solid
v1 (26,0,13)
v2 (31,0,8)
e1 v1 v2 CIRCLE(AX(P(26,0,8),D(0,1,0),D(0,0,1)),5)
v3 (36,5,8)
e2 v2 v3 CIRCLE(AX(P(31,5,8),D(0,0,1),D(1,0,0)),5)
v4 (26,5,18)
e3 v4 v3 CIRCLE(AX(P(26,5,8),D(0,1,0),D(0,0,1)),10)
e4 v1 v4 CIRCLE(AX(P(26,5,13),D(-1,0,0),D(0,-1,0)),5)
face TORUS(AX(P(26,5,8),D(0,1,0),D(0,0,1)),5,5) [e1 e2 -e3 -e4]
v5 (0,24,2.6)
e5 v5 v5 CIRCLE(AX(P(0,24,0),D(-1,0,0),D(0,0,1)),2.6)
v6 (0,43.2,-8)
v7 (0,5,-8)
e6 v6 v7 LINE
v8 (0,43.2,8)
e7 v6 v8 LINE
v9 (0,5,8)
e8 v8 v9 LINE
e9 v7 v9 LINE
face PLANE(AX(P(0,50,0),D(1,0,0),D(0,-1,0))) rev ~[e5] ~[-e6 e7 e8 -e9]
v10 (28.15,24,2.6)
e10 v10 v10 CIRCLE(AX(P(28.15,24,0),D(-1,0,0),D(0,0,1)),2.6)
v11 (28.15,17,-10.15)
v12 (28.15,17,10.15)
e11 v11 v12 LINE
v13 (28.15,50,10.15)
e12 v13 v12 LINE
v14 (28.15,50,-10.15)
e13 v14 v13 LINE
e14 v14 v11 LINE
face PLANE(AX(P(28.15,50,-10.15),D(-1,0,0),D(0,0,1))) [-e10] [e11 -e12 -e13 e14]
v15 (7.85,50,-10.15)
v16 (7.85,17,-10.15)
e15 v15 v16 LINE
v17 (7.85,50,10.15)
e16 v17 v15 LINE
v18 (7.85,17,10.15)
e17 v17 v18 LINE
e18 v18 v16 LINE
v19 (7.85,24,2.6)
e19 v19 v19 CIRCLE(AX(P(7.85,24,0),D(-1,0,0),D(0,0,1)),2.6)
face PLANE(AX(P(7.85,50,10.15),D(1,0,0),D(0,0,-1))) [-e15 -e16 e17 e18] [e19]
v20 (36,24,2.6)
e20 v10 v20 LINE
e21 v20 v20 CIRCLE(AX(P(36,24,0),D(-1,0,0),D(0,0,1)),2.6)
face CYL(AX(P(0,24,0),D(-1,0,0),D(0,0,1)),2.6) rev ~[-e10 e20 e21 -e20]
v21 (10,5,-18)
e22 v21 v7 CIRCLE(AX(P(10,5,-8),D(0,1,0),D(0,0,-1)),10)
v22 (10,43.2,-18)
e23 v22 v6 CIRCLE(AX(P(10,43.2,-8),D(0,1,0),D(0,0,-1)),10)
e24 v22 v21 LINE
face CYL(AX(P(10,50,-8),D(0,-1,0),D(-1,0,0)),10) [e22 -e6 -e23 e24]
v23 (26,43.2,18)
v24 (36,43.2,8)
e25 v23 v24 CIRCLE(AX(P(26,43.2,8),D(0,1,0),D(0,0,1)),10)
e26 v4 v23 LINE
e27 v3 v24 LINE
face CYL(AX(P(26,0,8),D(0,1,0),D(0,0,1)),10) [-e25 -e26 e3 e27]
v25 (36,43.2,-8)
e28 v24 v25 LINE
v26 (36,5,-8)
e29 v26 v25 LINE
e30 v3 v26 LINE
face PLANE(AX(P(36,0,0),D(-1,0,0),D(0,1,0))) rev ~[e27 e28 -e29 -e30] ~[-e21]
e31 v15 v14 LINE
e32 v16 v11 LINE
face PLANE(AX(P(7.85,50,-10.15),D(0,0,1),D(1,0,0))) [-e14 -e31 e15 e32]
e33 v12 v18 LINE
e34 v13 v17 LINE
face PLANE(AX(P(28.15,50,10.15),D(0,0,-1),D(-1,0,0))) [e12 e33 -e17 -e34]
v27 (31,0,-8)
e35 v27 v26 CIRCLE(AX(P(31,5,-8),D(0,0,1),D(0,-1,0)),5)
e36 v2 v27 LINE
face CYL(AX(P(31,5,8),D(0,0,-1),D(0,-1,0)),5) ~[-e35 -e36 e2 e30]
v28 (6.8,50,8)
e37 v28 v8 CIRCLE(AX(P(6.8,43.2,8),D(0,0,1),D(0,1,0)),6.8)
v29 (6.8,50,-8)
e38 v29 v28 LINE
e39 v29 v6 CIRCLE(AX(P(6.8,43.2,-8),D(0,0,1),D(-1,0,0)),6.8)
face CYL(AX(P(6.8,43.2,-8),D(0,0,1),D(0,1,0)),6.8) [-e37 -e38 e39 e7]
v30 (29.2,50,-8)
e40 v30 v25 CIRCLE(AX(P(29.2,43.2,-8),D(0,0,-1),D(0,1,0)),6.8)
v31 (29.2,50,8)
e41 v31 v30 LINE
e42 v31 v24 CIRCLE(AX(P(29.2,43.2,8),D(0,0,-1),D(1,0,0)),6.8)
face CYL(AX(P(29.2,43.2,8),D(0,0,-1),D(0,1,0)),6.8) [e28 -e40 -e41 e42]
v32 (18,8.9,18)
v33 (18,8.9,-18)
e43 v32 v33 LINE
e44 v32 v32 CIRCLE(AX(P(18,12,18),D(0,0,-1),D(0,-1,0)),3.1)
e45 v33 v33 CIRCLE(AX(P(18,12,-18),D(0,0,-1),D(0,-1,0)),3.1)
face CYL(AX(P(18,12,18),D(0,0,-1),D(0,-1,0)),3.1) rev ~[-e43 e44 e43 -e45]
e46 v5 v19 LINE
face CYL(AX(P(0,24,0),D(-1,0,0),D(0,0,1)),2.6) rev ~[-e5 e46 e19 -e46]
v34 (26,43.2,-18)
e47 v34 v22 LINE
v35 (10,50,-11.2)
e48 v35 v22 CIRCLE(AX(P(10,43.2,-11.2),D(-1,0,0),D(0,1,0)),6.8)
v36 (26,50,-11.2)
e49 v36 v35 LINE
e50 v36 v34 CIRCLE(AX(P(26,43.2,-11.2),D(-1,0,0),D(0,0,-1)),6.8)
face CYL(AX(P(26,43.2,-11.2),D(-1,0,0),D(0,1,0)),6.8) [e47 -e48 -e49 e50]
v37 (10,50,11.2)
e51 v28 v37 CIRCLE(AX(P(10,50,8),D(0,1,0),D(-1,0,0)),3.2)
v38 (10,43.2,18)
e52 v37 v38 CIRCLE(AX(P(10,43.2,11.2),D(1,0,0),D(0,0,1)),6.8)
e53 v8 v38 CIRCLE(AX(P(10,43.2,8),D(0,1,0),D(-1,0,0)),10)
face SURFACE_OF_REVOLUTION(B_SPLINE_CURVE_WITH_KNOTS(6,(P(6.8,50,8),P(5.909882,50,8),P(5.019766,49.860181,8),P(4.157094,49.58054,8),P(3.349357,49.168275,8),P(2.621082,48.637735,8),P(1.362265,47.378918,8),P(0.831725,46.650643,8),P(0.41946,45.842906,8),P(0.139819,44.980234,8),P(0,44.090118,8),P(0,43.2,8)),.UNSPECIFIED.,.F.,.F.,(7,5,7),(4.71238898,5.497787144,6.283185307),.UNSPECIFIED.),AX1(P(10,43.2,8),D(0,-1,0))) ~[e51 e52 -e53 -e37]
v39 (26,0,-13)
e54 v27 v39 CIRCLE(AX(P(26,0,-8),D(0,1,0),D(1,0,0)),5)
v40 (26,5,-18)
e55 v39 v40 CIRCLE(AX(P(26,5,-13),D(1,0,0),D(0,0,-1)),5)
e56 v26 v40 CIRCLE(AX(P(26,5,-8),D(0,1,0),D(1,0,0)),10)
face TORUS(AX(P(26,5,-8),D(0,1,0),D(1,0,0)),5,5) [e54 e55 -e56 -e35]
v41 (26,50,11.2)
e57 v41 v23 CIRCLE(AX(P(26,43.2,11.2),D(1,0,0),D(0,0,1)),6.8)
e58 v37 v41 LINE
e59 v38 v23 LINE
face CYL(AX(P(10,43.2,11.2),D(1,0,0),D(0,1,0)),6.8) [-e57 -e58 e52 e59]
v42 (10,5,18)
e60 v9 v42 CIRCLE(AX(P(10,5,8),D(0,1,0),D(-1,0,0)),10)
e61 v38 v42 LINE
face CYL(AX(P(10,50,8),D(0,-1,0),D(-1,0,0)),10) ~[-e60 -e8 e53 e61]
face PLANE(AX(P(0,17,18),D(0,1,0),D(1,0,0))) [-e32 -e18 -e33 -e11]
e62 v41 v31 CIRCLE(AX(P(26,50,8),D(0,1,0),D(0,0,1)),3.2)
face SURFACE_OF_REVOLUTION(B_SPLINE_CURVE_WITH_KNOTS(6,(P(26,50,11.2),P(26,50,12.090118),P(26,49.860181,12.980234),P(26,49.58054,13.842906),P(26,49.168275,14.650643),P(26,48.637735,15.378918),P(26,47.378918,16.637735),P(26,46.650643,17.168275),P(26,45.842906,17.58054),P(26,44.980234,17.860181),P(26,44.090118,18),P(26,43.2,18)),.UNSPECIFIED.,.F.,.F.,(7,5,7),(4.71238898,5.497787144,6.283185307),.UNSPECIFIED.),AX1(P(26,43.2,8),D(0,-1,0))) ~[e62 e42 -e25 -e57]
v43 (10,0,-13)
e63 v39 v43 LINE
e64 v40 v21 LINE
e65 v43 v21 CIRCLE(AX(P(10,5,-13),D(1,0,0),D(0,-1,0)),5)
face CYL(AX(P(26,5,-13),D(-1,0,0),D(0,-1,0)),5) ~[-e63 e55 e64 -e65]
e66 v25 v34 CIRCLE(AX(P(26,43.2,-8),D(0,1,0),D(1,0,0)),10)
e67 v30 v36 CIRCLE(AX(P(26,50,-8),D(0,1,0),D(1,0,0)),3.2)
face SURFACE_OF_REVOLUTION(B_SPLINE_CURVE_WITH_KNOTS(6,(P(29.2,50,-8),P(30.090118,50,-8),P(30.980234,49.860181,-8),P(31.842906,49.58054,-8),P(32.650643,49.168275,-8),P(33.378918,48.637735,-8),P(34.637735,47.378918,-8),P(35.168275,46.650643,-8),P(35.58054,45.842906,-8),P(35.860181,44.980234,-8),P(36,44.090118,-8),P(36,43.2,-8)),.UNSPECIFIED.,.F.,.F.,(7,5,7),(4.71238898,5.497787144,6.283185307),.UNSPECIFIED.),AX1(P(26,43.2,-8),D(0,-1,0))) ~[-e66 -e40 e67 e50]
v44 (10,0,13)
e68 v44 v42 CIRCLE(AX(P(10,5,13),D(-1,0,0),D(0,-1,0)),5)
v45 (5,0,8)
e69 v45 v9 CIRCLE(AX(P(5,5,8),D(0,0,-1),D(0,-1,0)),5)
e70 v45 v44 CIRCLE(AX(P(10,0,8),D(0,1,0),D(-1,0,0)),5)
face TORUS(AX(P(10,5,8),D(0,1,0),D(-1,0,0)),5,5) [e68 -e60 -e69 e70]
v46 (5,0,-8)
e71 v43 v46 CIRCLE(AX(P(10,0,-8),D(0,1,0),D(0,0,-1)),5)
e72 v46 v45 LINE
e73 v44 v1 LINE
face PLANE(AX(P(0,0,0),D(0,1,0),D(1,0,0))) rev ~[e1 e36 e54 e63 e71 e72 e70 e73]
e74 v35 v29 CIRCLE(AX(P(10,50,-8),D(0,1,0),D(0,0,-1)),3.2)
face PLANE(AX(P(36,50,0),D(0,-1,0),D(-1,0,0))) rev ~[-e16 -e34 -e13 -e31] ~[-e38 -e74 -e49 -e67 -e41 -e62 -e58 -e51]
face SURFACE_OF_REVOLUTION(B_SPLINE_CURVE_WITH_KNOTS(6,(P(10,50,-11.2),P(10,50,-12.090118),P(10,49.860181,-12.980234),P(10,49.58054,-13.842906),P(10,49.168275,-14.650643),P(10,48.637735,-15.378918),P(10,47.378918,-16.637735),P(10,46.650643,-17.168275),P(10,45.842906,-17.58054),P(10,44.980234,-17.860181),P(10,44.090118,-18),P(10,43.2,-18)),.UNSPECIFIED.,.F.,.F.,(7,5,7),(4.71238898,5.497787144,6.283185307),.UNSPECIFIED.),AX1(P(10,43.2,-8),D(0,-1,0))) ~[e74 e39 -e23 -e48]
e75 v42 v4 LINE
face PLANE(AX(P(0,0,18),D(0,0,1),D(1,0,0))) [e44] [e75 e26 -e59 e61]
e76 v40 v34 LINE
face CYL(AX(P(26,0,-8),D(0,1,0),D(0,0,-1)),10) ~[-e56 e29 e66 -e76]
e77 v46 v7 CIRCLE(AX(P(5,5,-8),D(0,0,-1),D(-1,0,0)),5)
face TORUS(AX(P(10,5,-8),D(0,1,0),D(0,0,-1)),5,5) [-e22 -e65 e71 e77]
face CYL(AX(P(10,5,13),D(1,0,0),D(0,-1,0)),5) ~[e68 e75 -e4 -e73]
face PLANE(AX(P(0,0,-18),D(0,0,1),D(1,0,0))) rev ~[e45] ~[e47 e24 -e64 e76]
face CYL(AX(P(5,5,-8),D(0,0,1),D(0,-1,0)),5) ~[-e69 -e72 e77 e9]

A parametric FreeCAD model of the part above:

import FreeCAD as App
import Part
import Sketcher

V = App.Vector


def edges_at(feature, points):
    """Names of the edges that pass closest to the given points."""
    edges = feature.Shape.Edges
    near = lambda p: min(range(len(edges)), key=lambda i: edges[i].distToShape(Part.Vertex(*p))[0])
    return sorted({f"Edge{near(p) + 1}" for p in points})


def add_polygon(sketch, points):
    """Adds a closed chain of lines whose ends are joined by coincident constraints."""
    first, n = sketch.GeometryCount, len(points)
    for a, b in zip(points, points[1:] + points[:1]):
        sketch.addGeometry(Part.LineSegment(App.Vector(*a, 0), App.Vector(*b, 0)), False)
    for i in range(n):
        sketch.addConstraint(Sketcher.Constraint("Coincident", first + i, 2, first + (i + 1) % n, 1))

doc = App.newDocument("Part")
body = doc.addObject("PartDesign::Body", "Body")

sketch1 = doc.addObject("Sketcher::SketchObject", "Sketch")
body.addObject(sketch1)
sketch1.AttachmentSupport = (doc.XY_Plane, [""])
sketch1.MapMode = "FlatFace"
add_polygon(sketch1, [(0, 50), (0, 0), (36, 0), (36, 50)])
sketch1.addConstraint(Sketcher.Constraint("Vertical", 0))
sketch1.addConstraint(Sketcher.Constraint("Horizontal", 1))
sketch1.addConstraint(Sketcher.Constraint("Vertical", 2))
sketch1.addConstraint(Sketcher.Constraint("Horizontal", 3))
sketch1.addConstraint(Sketcher.Constraint("Coincident", 0, 2, -1, 1))
sketch1.addConstraint(Sketcher.Constraint("DistanceX", 1, 1, 1, 2, 36.0))
sketch1.addConstraint(Sketcher.Constraint("DistanceY", 0, 2, 0, 1, 50.0))
pad1 = doc.addObject("PartDesign::Pad", "Pad")
body.addObject(pad1)
pad1.Profile = sketch1
pad1.Length = 36
pad1.Midplane = True

sketch2 = doc.addObject("Sketcher::SketchObject", "Sketch001")
body.addObject(sketch2)
sketch2.AttachmentSupport = (doc.XZ_Plane, [""])
sketch2.MapMode = "FlatFace"
sketch2.AttachmentOffset = App.Placement(V(0, 0, -50), App.Rotation())
add_polygon(sketch2, [(7.85, 10.15), (28.15, 10.15), (28.15, -10.15), (7.85, -10.15)])
sketch2.addConstraint(Sketcher.Constraint("Horizontal", 0))
sketch2.addConstraint(Sketcher.Constraint("Vertical", 1))
sketch2.addConstraint(Sketcher.Constraint("Horizontal", 2))
sketch2.addConstraint(Sketcher.Constraint("Vertical", 3))
sketch2.addConstraint(Sketcher.Constraint("Equal", 2, 1))
sketch2.addConstraint(Sketcher.Constraint("DistanceX", 0, 1, 0, 2, 20.3))
sketch2.addConstraint(Sketcher.Constraint("DistanceX", -1, 1, 0, 2, 28.15))
sketch2.addConstraint(Sketcher.Constraint("DistanceY", -1, 1, 0, 2, 10.15))
pocket1 = doc.addObject("PartDesign::Pocket", "Pocket")
body.addObject(pocket1)
pocket1.Profile = sketch2
pocket1.Length = 33
pocket1.Reversed = True

sketch3 = doc.addObject("Sketcher::SketchObject", "Sketch002")
body.addObject(sketch3)
sketch3.AttachmentSupport = (doc.XY_Plane, [""])
sketch3.MapMode = "FlatFace"
sketch3.AttachmentOffset = App.Placement(V(0, 0, 18), App.Rotation())
sketch3.addGeometry(Part.Circle(V(18, 12, 0), V(0, 0, 1), 3.1), False)
sketch3.addConstraint(Sketcher.Constraint("Diameter", 0, 6.2))
sketch3.addConstraint(Sketcher.Constraint("DistanceX", -1, 1, 0, 3, 18.0))
sketch3.addConstraint(Sketcher.Constraint("DistanceY", -1, 1, 0, 3, 12.0))
doc.recompute()
hole = doc.addObject("PartDesign::Hole", "Hole")
body.addObject(hole)
hole.Profile = sketch3
hole.ThreadType = "None"
hole.Diameter = 6.2
hole.DepthType = "ThroughAll"

sketch4 = doc.addObject("Sketcher::SketchObject", "Sketch003")
body.addObject(sketch4)
sketch4.AttachmentSupport = (doc.YZ_Plane, [""])
sketch4.MapMode = "FlatFace"
sketch4.addGeometry(Part.Circle(V(24, 0, 0), V(0, 0, 1), 2.6), False)
sketch4.addConstraint(Sketcher.Constraint("PointOnObject", 0, 3, -1))
sketch4.addConstraint(Sketcher.Constraint("Diameter", 0, 5.2))
sketch4.addConstraint(Sketcher.Constraint("DistanceX", -1, 1, 0, 3, 24.0))
pocket2 = doc.addObject("PartDesign::Pocket", "Pocket001")
body.addObject(pocket2)
pocket2.Profile = sketch4
pocket2.Type = "ThroughAll"
pocket2.Reversed = True
doc.recompute()

fillet = doc.addObject("PartDesign::Fillet", "Fillet")
body.addObject(fillet)
fillet.Base = (pocket2, edges_at(pocket2, [
    (36, 25, 18),
    (0, 25, 18),
    (0, 25, -18),
    (36, 25, -18),
]))
fillet.Radius = 10
doc.recompute()

fillet2 = doc.addObject("PartDesign::Fillet", "Fillet001")
body.addObject(fillet2)
fillet2.Base = (fillet, edges_at(fillet, [
    (18, 0, 18),
    (33.071, 0, 15.071),
    (36, 0, 0),
    (33.071, 0, -15.071),
    (18, 0, -18),
    (2.929, 0, -15.071),
    (0, 0, 0),
    (2.929, 0, 15.071),
]))
fillet2.Radius = 5
doc.recompute()

fillet3 = doc.addObject("PartDesign::Fillet", "Fillet002")
body.addObject(fillet3)
fillet3.Base = (fillet2, edges_at(fillet2, [
    (33.071, 50, 15.071),
    (18, 50, 18),
    (2.929, 50, 15.071),
    (0, 50, 0),
    (2.929, 50, -15.071),
    (18, 50, -18),
    (33.071, 50, -15.071),
    (36, 50, 0),
]))
fillet3.Radius = 6.8

doc.recompute()
